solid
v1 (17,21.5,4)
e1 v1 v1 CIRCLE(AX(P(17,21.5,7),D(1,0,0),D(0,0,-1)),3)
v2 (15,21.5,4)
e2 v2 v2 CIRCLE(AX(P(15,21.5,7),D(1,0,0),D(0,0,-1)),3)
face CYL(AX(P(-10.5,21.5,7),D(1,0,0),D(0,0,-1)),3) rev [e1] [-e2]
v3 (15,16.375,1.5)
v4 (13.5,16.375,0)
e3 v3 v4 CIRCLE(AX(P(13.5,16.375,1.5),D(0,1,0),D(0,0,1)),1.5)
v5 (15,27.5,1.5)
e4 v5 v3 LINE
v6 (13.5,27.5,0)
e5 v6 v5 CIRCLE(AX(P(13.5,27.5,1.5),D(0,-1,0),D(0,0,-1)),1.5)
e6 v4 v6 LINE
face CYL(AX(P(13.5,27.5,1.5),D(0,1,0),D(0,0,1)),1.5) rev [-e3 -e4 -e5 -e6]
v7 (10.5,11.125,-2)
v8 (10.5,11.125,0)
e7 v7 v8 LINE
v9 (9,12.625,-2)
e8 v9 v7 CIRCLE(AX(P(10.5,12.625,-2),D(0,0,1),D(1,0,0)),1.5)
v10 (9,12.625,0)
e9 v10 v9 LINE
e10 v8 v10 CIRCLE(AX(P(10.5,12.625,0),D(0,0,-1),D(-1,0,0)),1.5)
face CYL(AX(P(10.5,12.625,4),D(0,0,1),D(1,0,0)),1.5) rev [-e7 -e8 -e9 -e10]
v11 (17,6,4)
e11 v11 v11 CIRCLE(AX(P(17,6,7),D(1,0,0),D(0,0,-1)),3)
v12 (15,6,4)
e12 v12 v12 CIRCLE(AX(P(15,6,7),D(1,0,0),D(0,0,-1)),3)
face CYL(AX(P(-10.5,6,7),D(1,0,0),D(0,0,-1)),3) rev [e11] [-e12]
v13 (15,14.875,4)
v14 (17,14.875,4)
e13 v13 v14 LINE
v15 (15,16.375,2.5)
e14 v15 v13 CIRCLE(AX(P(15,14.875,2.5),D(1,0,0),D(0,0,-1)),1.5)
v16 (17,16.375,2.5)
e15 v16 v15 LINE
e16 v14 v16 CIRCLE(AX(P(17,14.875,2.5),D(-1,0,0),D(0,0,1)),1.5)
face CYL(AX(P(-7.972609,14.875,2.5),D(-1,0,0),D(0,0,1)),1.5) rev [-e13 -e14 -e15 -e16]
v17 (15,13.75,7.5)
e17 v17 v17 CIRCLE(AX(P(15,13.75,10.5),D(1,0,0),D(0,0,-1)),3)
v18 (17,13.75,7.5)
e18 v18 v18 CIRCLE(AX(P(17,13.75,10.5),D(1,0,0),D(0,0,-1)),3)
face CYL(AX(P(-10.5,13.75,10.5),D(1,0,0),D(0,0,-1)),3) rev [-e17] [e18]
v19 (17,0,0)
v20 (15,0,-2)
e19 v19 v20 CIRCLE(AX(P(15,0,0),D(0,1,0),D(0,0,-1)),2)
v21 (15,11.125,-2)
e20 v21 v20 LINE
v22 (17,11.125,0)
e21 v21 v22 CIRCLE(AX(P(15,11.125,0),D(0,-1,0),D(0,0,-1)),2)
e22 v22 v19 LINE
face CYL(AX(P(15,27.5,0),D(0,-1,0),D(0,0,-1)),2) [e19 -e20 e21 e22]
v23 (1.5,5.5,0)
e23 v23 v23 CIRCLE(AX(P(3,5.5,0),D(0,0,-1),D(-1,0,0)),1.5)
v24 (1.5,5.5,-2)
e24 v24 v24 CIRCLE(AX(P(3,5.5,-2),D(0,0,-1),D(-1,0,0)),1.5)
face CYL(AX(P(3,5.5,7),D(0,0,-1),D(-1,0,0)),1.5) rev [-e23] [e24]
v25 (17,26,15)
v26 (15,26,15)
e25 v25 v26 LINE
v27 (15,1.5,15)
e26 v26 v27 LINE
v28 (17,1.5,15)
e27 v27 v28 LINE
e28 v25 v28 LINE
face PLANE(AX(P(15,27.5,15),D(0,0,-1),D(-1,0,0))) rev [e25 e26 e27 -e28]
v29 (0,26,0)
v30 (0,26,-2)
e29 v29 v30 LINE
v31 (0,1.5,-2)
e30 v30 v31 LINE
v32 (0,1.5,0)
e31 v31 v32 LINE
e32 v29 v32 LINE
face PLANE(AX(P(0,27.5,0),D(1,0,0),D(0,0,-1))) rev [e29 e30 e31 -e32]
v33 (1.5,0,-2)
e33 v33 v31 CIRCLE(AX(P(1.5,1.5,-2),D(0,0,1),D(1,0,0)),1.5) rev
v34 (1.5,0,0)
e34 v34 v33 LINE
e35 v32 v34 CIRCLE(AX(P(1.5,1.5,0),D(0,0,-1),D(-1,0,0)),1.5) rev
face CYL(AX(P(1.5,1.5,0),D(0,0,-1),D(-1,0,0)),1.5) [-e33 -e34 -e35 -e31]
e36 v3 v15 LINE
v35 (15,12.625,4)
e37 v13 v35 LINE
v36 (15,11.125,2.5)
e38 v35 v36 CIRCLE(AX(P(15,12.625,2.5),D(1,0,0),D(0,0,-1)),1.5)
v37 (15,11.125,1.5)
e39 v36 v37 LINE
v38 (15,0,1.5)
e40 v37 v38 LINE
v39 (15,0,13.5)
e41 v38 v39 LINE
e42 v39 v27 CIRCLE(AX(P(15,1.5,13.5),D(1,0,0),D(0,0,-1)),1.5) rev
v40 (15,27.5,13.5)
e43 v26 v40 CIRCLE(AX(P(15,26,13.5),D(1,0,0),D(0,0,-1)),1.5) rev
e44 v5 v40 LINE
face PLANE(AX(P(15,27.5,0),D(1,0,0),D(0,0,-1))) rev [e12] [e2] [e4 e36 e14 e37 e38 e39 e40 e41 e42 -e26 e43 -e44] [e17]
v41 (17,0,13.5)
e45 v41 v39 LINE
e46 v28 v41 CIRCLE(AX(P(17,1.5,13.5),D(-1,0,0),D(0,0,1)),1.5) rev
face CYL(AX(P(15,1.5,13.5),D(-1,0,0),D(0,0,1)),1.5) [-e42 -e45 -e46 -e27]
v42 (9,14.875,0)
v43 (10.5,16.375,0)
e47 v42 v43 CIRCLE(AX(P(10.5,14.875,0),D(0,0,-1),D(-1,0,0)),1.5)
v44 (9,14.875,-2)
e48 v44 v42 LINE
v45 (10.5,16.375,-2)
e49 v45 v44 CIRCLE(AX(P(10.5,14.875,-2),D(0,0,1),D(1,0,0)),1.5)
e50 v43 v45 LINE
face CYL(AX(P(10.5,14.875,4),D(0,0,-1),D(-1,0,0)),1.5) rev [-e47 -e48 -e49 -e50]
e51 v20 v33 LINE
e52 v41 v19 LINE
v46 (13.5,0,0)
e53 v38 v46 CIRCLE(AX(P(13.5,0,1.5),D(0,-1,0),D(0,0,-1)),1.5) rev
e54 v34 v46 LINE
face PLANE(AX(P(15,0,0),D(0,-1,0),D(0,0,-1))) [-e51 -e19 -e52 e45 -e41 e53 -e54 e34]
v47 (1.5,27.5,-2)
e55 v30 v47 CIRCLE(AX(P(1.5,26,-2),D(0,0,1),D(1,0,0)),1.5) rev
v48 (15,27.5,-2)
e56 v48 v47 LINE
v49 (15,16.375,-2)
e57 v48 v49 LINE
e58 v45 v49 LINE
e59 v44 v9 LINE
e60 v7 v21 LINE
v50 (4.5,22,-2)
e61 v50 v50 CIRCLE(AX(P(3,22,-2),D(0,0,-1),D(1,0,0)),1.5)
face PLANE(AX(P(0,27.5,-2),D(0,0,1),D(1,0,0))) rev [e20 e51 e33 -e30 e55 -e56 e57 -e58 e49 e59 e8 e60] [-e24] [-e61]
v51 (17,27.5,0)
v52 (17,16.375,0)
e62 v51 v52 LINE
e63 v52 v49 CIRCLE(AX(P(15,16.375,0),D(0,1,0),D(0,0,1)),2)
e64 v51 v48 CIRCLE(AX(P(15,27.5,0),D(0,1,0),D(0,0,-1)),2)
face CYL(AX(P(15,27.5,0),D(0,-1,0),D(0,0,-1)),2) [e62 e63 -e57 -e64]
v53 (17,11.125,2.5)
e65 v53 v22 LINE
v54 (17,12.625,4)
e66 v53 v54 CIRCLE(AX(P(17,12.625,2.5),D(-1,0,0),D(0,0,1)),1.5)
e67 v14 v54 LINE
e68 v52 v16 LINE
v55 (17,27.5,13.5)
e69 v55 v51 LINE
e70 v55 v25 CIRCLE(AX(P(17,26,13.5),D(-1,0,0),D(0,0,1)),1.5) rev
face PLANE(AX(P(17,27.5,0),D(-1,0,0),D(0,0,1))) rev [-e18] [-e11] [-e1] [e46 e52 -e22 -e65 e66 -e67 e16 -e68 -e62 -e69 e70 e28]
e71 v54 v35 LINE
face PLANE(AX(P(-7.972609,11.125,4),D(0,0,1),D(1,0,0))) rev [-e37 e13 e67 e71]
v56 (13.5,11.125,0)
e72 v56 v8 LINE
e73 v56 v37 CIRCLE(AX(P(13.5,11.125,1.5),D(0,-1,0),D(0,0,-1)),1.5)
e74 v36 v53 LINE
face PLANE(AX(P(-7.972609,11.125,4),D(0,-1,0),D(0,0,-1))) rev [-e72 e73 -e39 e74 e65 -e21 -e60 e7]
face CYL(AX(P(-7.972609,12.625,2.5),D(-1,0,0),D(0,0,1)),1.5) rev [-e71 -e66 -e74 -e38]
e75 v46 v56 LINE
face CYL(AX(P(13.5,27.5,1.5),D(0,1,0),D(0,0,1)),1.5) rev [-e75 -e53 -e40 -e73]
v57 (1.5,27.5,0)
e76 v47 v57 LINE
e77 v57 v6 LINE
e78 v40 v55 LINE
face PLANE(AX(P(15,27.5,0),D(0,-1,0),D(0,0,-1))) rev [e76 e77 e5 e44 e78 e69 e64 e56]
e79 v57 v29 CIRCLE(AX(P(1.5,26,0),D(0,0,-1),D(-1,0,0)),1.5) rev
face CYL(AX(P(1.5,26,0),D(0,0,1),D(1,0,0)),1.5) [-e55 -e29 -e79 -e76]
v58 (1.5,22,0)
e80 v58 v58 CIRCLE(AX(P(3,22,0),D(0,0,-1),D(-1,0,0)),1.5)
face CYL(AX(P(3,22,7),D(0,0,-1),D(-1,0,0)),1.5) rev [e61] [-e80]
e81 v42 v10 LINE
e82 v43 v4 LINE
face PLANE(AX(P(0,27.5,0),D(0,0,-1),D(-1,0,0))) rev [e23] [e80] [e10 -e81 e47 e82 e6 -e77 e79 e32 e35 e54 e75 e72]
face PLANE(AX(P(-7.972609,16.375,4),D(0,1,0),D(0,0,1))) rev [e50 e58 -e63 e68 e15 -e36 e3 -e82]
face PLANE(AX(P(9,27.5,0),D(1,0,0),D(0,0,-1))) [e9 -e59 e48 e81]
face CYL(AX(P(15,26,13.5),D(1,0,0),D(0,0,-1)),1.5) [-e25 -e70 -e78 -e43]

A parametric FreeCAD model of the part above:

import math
import FreeCAD as App
import Part
import Sketcher
Q = App.Units.Quantity


def edges_at(feature, points):
    """Names of the edges that pass closest to the given points."""
    edges = feature.Shape.Edges
    near = lambda p: min(range(len(edges)), key=lambda i: edges[i].distToShape(Part.Vertex(*p))[0])
    return sorted({f"Edge{near(p) + 1}" for p in points})


def add_polygon(sketch, points):
    """Adds a closed chain of lines whose ends are joined by coincident constraints."""
    first, n = sketch.GeometryCount, len(points)
    for a, b in zip(points, points[1:] + points[:1]):
        sketch.addGeometry(Part.LineSegment(App.Vector(*a, 0), App.Vector(*b, 0)), False)
    for i in range(n):
        sketch.addConstraint(Sketcher.Constraint("Coincident", first + i, 2, first + (i + 1) % n, 1))

doc = App.newDocument("Part")
params = doc.addObject("Spreadsheet::Sheet", "Params")
for row, (alias, value) in enumerate([
    ("sketch1_radius", "2 mm"),
    ("sketch1_width", "15 mm"),
    ("pad1_length", "27.5 mm"),
    ("sketch2_diameter", "6 mm"),
    ("pocket1_length", "27.5 mm"),
    ("sketch3_height", "6 mm"),
    ("sketch3_width", "5.25 mm"),
    ("pocket2_length", "8 mm"),
    ("sketch4_diameter", "3 mm"),
    ("pocket3_length", "9 mm"),
    ("fillet_radius", "1.5 mm"),
], start=1):
    params.set(f"A{row}", alias)
    params.set(f"B{row}", "=" + value)
    params.setAlias(f"B{row}", alias)

body = doc.addObject("PartDesign::Body", "Body")

sketch1 = body.newObject("Sketcher::SketchObject", "Sketch")
sketch1.AttachmentSupport = (doc.getObject("XZ_Plane"), [""])
sketch1.MapMode = "FlatFace"
sketch1.addGeometry(Part.LineSegment(App.Vector(0, 0, 0), App.Vector(15, 0, 0)), False)
sketch1.addGeometry(Part.LineSegment(App.Vector(15, 0, 0), App.Vector(15, 15, 0)), False)
sketch1.addGeometry(Part.LineSegment(App.Vector(15, 15, 0), App.Vector(17, 15, 0)), False)
sketch1.addGeometry(Part.LineSegment(App.Vector(17, 15, 0), App.Vector(17, 0, 0)), False)
sketch1.addGeometry(Part.ArcOfCircle(Part.Circle(App.Vector(15, 0, 0), App.Vector(0, 0, 1), 2), math.radians(-90), math.radians(0)), False)
sketch1.addGeometry(Part.LineSegment(App.Vector(15, -2, 0), App.Vector(0, -2, 0)), False)
sketch1.addGeometry(Part.LineSegment(App.Vector(0, -2, 0), App.Vector(0, 0, 0)), False)
sketch1.addConstraint(Sketcher.Constraint("Coincident", 0, 2, 1, 1))
sketch1.addConstraint(Sketcher.Constraint("Coincident", 1, 2, 2, 1))
sketch1.addConstraint(Sketcher.Constraint("Coincident", 2, 2, 3, 1))
sketch1.addConstraint(Sketcher.Constraint("Tangent", 3, 2, 4, 2))
sketch1.addConstraint(Sketcher.Constraint("Tangent", 4, 1, 5, 1))
sketch1.addConstraint(Sketcher.Constraint("Coincident", 5, 2, 6, 1))
sketch1.addConstraint(Sketcher.Constraint("Coincident", 6, 2, 0, 1))
sketch1.addConstraint(Sketcher.Constraint("Horizontal", 0))
sketch1.addConstraint(Sketcher.Constraint("Vertical", 1))
sketch1.addConstraint(Sketcher.Constraint("Horizontal", 2))
sketch1.addConstraint(Sketcher.Constraint("Vertical", 3))
sketch1.addConstraint(Sketcher.Constraint("Horizontal", 5))
sketch1.addConstraint(Sketcher.Constraint("Vertical", 6))
sketch1.addConstraint(Sketcher.Constraint("Coincident", 6, 2, -1, 1))
sketch1.addConstraint(Sketcher.Constraint("Coincident", 0, 2, 4, 3))
sketch1.addConstraint(Sketcher.Constraint("Equal", 5, 1))
sketch1.addConstraint(Sketcher.Constraint("Radius", 4, Q("2 mm")))
sketch1.addConstraint(Sketcher.Constraint("DistanceX", 0, 1, 0, 2, Q("15 mm")))
sketch1.setExpression("Constraints[16]", "Params.sketch1_radius")
sketch1.setExpression("Constraints[17]", "Params.sketch1_width")
pad1 = body.newObject("PartDesign::Pad", "Pad")
pad1.Profile = sketch1
pad1.setExpression("Length", "Params.pad1_length")
pad1.Reversed = True

sketch2 = body.newObject("Sketcher::SketchObject", "Sketch001")
sketch2.AttachmentSupport = (doc.getObject("YZ_Plane"), [""])
sketch2.MapMode = "FlatFace"
sketch2.AttachmentOffset = App.Placement(App.Vector(0, 0, 17), App.Rotation())
sketch2.addGeometry(Part.Circle(App.Vector(6, 7, 0), App.Vector(0, 0, 1), 3), False)
sketch2.addGeometry(Part.Circle(App.Vector(13.8, 10.5, 0), App.Vector(0, 0, 1), 3), False)
sketch2.addGeometry(Part.Circle(App.Vector(21.5, 7, 0), App.Vector(0, 0, 1), 3), False)
sketch2.addConstraint(Sketcher.Constraint("Equal", 0, 1))
sketch2.addConstraint(Sketcher.Constraint("Equal", 1, 2))
sketch2.addConstraint(Sketcher.Constraint("Horizontal", 0, 3, 2, 3))
sketch2.addConstraint(Sketcher.Constraint("Diameter", 0, Q("6 mm")))
sketch2.addConstraint(Sketcher.Constraint("DistanceX", -1, 1, 0, 3, Q("6 mm")))
sketch2.addConstraint(Sketcher.Constraint("DistanceY", -1, 1, 0, 3, Q("7 mm")))
sketch2.addConstraint(Sketcher.Constraint("DistanceY", -1, 1, 1, 3, Q("10.5 mm")))
sketch2.addConstraint(Sketcher.Constraint("DistanceX", -1, 1, 2, 3, Q("21.5 mm")))
sketch2.addConstraint(Sketcher.Constraint("DistanceX", -1, 1, 1, 3, Q("13.75 mm")))
sketch2.setExpression("Constraints[3]", "Params.sketch2_diameter")
pocket1 = body.newObject("PartDesign::Pocket", "Pocket")
pocket1.Profile = sketch2
pocket1.setExpression("Length", "Params.pocket1_length")

sketch3 = body.newObject("Sketcher::SketchObject", "Sketch002")
sketch3.AttachmentSupport = (doc.getObject("YZ_Plane"), [""])
sketch3.MapMode = "FlatFace"
sketch3.AttachmentOffset = App.Placement(App.Vector(0, 0, 17), App.Rotation())
add_polygon(sketch3, [(16, 4), (11, 4), (11, -2), (16, -2)])
sketch3.addConstraint(Sketcher.Constraint("Horizontal", 0))
sketch3.addConstraint(Sketcher.Constraint("Vertical", 1))
sketch3.addConstraint(Sketcher.Constraint("Horizontal", 2))
sketch3.addConstraint(Sketcher.Constraint("Vertical", 3))
sketch3.addConstraint(Sketcher.Constraint("DistanceY", 1, 2, 1, 1, Q("6 mm")))
sketch3.addConstraint(Sketcher.Constraint("DistanceY", -1, 1, 0, 2, Q("4 mm")))
sketch3.addConstraint(Sketcher.Constraint("DistanceX", 0, 2, 0, 1, Q("5.25 mm")))
sketch3.addConstraint(Sketcher.Constraint("DistanceX", -1, 1, 0, 2, Q("11.125 mm")))
sketch3.setExpression("Constraints[8]", "Params.sketch3_height")
sketch3.setExpression("Constraints[10]", "Params.sketch3_width")
pocket2 = body.newObject("PartDesign::Pocket", "Pocket001")
pocket2.Profile = sketch3
pocket2.setExpression("Length", "Params.pocket2_length")

sketch4 = body.newObject("Sketcher::SketchObject", "Sketch003")
sketch4.AttachmentSupport = (doc.getObject("XY_Plane"), [""])
sketch4.MapMode = "FlatFace"
sketch4.AttachmentOffset = App.Placement(App.Vector(0, 0, -2), App.Rotation())
sketch4.addGeometry(Part.Circle(App.Vector(3, 5.5, 0), App.Vector(0, 0, 1), 1.5), False)
sketch4.addGeometry(Part.Circle(App.Vector(3, 22, 0), App.Vector(0, 0, 1), 1.5), False)
sketch4.addConstraint(Sketcher.Constraint("Equal", 0, 1))
sketch4.addConstraint(Sketcher.Constraint("Vertical", 0, 3, 1, 3))
sketch4.addConstraint(Sketcher.Constraint("Diameter", 0, Q("3 mm")))
sketch4.addConstraint(Sketcher.Constraint("DistanceX", -1, 1, 0, 3, Q("3 mm")))
sketch4.addConstraint(Sketcher.Constraint("DistanceY", -1, 1, 1, 3, Q("22 mm")))
sketch4.addConstraint(Sketcher.Constraint("DistanceY", -1, 1, 0, 3, Q("5.5 mm")))
sketch4.setExpression("Constraints[2]", "Params.sketch4_diameter")
pocket3 = body.newObject("PartDesign::Pocket", "Pocket002")
pocket3.Profile = sketch4
pocket3.setExpression("Length", "Params.pocket3_length")
pocket3.Reversed = True
doc.recompute()

fillet = body.newObject("PartDesign::Fillet", "Fillet")
fillet.Base = (pocket3, edges_at(pocket3, [
    (0, 0, -1),
    (15, 21.938, 0),
    (16, 27.5, 15),
    (15, 5.562, 0),
    (16, 11.125, 4),
    (16, 16.375, 4),
    (9, 16.375, -1),
    (9, 11.125, -1),
    (0, 27.5, -1),
    (16, 0, 15),
]))
fillet.setExpression("Radius", "Params.fillet_radius")

doc.recompute()
